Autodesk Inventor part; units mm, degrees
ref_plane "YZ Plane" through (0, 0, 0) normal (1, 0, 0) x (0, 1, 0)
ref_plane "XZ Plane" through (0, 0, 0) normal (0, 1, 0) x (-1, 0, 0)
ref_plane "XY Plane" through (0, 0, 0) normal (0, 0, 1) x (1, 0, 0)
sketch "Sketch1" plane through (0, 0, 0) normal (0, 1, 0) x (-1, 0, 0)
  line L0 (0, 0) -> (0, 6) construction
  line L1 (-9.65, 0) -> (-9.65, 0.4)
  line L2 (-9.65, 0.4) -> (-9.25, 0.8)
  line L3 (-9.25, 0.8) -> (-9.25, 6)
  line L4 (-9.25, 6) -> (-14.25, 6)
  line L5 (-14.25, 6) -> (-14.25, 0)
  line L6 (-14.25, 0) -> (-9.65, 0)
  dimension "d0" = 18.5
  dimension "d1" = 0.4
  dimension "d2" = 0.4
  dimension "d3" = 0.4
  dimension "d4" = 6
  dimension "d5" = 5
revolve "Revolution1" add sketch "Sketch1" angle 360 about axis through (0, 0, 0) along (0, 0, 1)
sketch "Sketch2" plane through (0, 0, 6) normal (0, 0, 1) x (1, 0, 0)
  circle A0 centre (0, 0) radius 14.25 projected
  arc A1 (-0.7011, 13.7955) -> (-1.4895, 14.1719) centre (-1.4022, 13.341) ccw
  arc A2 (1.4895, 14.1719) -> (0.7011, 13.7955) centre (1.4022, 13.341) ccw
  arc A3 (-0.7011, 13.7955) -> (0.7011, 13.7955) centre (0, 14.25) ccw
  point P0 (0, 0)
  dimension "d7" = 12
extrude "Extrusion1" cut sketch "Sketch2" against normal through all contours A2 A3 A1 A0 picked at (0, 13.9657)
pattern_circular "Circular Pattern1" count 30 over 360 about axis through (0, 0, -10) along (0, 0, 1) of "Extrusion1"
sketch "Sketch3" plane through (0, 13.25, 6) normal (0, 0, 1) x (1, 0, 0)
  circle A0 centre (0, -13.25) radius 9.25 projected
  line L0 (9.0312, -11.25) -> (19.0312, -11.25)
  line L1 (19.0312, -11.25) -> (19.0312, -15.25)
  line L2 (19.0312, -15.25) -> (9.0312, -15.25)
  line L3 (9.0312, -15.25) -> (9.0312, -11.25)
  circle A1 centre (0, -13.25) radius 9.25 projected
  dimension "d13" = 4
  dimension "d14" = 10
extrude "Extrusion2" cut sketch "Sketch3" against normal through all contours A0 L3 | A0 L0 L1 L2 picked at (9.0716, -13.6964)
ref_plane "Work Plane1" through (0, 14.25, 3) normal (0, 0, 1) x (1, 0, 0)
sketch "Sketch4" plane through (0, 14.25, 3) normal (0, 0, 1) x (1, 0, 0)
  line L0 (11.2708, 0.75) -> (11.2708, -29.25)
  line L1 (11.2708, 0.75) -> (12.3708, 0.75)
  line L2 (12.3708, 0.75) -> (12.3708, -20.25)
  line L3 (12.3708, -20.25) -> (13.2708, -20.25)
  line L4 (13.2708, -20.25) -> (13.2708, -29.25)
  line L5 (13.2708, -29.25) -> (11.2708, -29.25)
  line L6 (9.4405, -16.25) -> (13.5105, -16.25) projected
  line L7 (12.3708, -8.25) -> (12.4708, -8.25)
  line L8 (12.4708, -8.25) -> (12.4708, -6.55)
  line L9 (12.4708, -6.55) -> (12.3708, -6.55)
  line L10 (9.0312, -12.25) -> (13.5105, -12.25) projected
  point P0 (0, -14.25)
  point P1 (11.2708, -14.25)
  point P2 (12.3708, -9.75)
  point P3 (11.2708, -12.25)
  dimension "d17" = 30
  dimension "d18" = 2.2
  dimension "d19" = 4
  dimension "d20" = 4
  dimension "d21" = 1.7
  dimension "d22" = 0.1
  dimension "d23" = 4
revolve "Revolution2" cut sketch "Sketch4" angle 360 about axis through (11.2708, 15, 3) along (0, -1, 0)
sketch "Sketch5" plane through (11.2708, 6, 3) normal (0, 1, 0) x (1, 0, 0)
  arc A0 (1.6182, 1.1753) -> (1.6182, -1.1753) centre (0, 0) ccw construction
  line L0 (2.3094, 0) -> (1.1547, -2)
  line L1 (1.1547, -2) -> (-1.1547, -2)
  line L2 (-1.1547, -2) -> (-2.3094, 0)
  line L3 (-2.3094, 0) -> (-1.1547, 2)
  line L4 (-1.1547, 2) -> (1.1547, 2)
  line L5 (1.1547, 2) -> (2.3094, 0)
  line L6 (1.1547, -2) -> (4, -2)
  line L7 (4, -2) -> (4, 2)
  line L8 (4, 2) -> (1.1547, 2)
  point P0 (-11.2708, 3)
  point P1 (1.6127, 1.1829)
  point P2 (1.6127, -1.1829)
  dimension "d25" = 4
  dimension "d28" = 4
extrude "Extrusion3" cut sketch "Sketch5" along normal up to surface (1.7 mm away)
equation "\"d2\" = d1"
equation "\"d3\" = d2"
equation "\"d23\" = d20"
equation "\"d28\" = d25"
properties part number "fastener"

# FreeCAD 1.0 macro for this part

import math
import FreeCAD as App
import Part
import Sketcher

V = App.Vector
Q = App.Units.Quantity

doc = App.newDocument("Part")
params = doc.addObject("Spreadsheet::Sheet", "Params")
for row, (alias, value) in enumerate([
    ("sketch1_width", "5 mm"),
    ("sketch1_height", "6 mm"),
    ("sketch1_height2", "0.4 mm"),
    ("revolution_angle", "360 deg"),
    ("sketch2_radius", "14.25 mm"),
    ("sketch3_width", "10 mm"),
    ("sketch3_height", "4 mm"),
    ("sketch4_height", "30 mm"),
    ("sketch4_width", "0.1 mm"),
    ("sketch4_height2", "1.7 mm"),
    ("sketch4_width2", "2 mm"),
    ("sketch4_height3", "9 mm"),
    ("groove_angle", "360 deg"),
    ("sketch5_height", "4 mm"),
    ("pocket3_length", "1.7 mm"),
], start=1):
    params.set(f"A{row}", alias)
    params.set(f"B{row}", "=" + value)
    params.setAlias(f"B{row}", alias)

body = doc.addObject("PartDesign::Body", "Body")

# Sketch on XZ plane
sketch1 = body.newObject("Sketcher::SketchObject", "Sketch")
sketch1.AttachmentSupport = (doc.getObject("XZ_Plane"), [""])
sketch1.MapMode = "FlatFace"
sketch1.addGeometry([
    Part.LineSegment(V(14.25, 0, 0), V(9.65, 0, 0)),  # 0
    Part.LineSegment(V(9.65, 0, 0), V(9.65, 0.4, 0)),  # 1
    Part.LineSegment(V(9.65, 0.4, 0), V(9.25, 0.8, 0)),  # 2
    Part.LineSegment(V(9.25, 0.8, 0), V(9.25, 6, 0)),  # 3
    Part.LineSegment(V(9.25, 6, 0), V(14.25, 6, 0)),  # 4
    Part.LineSegment(V(14.25, 6, 0), V(14.25, 0, 0)),  # 5
], False)
sketch1.addConstraint([
    Sketcher.Constraint("Coincident", 0, 2, 1, 1),
    Sketcher.Constraint("Coincident", 1, 2, 2, 1),
    Sketcher.Constraint("Coincident", 2, 2, 3, 1),
    Sketcher.Constraint("Coincident", 3, 2, 4, 1),
    Sketcher.Constraint("Coincident", 4, 2, 5, 1),
    Sketcher.Constraint("Coincident", 5, 2, 0, 1),
    Sketcher.Constraint("Horizontal", 0),
    Sketcher.Constraint("Vertical", 1),
    Sketcher.Constraint("Vertical", 3),
    Sketcher.Constraint("Horizontal", 4),
    Sketcher.Constraint("Vertical", 5),
    Sketcher.Constraint("PointOnObject", 0, 2, -1),
    Sketcher.Constraint("DistanceX", 4, 1, 4, 2, 5.0),
    Sketcher.Constraint("DistanceY", 5, 2, 5, 1, 6.0),
    Sketcher.Constraint("DistanceY", 1, 1, 1, 2, 0.4),
    Sketcher.Constraint("DistanceX", 2, 2, 1, 2, 0.4),
    Sketcher.Constraint("DistanceY", 1, 2, 2, 2, 0.4),
    Sketcher.Constraint("DistanceX", -1, 1, 0, 2, 9.65),
])
sketch1.setExpression("Constraints[12]", "Params.sketch1_width")
sketch1.setExpression("Constraints[13]", "Params.sketch1_height")
sketch1.setExpression("Constraints[14]", "Params.sketch1_height2")
revolution = body.newObject("PartDesign::Revolution", "Revolution")
revolution.Profile = sketch1
revolution.ReferenceAxis = (sketch1, ["V_Axis"])
revolution.setExpression("Angle", "Params.revolution_angle")

# Sketch on XY plane
sketch2 = body.newObject("Sketcher::SketchObject", "Sketch001")
sketch2.AttachmentSupport = (doc.getObject("XY_Plane"), [""])
sketch2.MapMode = "FlatFace"
sketch2.AttachmentOffset = App.Placement(V(0, 0, 6), App.Rotation())
sketch2.addGeometry([
    Part.ArcOfCircle(Part.Circle(V(1.4022, 13.341, 0), V(0, 0, 1), 0.835474), math.radians(84.002122), math.radians(147.04599)),
    Part.ArcOfCircle(Part.Circle(V(0, 0, 0), V(0, 0, 1), 14.25), math.radians(84.000107), math.radians(95.999893)),
    Part.ArcOfCircle(Part.Circle(V(-1.4022, 13.341, 0), V(0, 0, 1), 0.835531), math.radians(32.95401), math.radians(95.997878)),
    Part.ArcOfCircle(Part.Circle(V(0, 14.25, 0), V(0, 0, 1), 0.835531), math.radians(-147.04599), math.radians(-32.95401)),
], False)
sketch2.addConstraint([
    Sketcher.Constraint("Tangent", 0, 1, 1, 1),
    Sketcher.Constraint("Tangent", 1, 2, 2, 2),
    Sketcher.Constraint("Tangent", 2, 1, 3, 1),
    Sketcher.Constraint("Tangent", 3, 2, 0, 2),
    Sketcher.Constraint("Coincident", 1, 3, -1, 1),
    Sketcher.Constraint("Equal", 0, 2),
    Sketcher.Constraint("Equal", 2, 3),
    Sketcher.Constraint("PointOnObject", 3, 3, -2),
    Sketcher.Constraint("Radius", 1, 14.25),
    Sketcher.Constraint("Radius", 0, 0.8355),
    Sketcher.Constraint("DistanceY", -1, 1, 3, 3, 14.25),
])
sketch2.setExpression("Constraints[8]", "Params.sketch2_radius")
pocket1 = body.newObject("PartDesign::Pocket", "Pocket")
pocket1.Profile = sketch2
pocket1.Type = "ThroughAll"
doc.recompute()

polarpattern = body.newObject("PartDesign::PolarPattern", "PolarPattern")
polarpattern.Originals = [pocket1]
polarpattern.Axis = (doc.getObject("Z_Axis"), [""])
polarpattern.Angle = 360
polarpattern.Occurrences = 30
body.Tip = polarpattern

# Sketch on XY plane
sketch3 = body.newObject("Sketcher::SketchObject", "Sketch002")
sketch3.AttachmentSupport = (doc.getObject("XY_Plane"), [""])
sketch3.MapMode = "FlatFace"
sketch3.AttachmentOffset = App.Placement(V(0, 0, 6), App.Rotation())
sketch3.addGeometry([
    Part.LineSegment(V(9.0312, 2, 0), V(9.0312, -2, 0)),
    Part.LineSegment(V(9.0312, -2, 0), V(19.0312, -2, 0)),
    Part.LineSegment(V(19.0312, -2, 0), V(19.0312, 2, 0)),
    Part.LineSegment(V(19.0312, 2, 0), V(9.0312, 2, 0)),
], False)
sketch3.addConstraint([
    Sketcher.Constraint("Coincident", 0, 2, 1, 1),
    Sketcher.Constraint("Coincident", 1, 2, 2, 1),
    Sketcher.Constraint("Coincident", 2, 2, 3, 1),
    Sketcher.Constraint("Coincident", 3, 2, 0, 1),
    Sketcher.Constraint("Vertical", 0),
    Sketcher.Constraint("Horizontal", 1),
    Sketcher.Constraint("Vertical", 2),
    Sketcher.Constraint("Horizontal", 3),
    Sketcher.Constraint("DistanceX", 1, 1, 1, 2, 10.0),
    Sketcher.Constraint("DistanceY", 0, 2, 0, 1, 4.0),
    Sketcher.Constraint("DistanceY", 0, 2, -1, 1, 2.0),
    Sketcher.Constraint("DistanceX", -1, 1, 0, 2, 9.0312),
])
sketch3.setExpression("Constraints[8]", "Params.sketch3_width")
sketch3.setExpression("Constraints[9]", "Params.sketch3_height")
pocket2 = body.newObject("PartDesign::Pocket", "Pocket001")
pocket2.Profile = sketch3
pocket2.Type = "ThroughAll"

# Sketch on XY plane
sketch4 = body.newObject("Sketcher::SketchObject", "Sketch003")
sketch4.AttachmentSupport = (doc.getObject("XY_Plane"), [""])
sketch4.MapMode = "FlatFace"
sketch4.AttachmentOffset = App.Placement(V(0, 0, 3), App.Rotation())
sketch4.addGeometry([
    Part.LineSegment(V(12.3708, 15, 0), V(11.2708, 15, 0)),  # 0
    Part.LineSegment(V(11.2708, 15, 0), V(11.2708, -15, 0)),  # 1
    Part.LineSegment(V(11.2708, -15, 0), V(13.2708, -15, 0)),  # 2
    Part.LineSegment(V(13.2708, -15, 0), V(13.2708, -6, 0)),  # 3
    Part.LineSegment(V(13.2708, -6, 0), V(12.3708, -6, 0)),  # 4
    Part.LineSegment(V(12.3708, -6, 0), V(12.3708, 6, 0)),  # 5
    Part.LineSegment(V(12.3708, 6, 0), V(12.4708, 6, 0)),  # 6
    Part.LineSegment(V(12.4708, 6, 0), V(12.4708, 7.7, 0)),  # 7
    Part.LineSegment(V(12.4708, 7.7, 0), V(12.3708, 7.7, 0)),  # 8
    Part.LineSegment(V(12.3708, 7.7, 0), V(12.3708, 15, 0)),  # 9
], False)
sketch4.addGeometry(Part.LineSegment(V(11.2708, 15, 0), V(11.2708, -15, 0)), True)  # axis
sketch4.addConstraint([
    Sketcher.Constraint("Coincident", 0, 2, 1, 1),
    Sketcher.Constraint("Coincident", 1, 2, 2, 1),
    Sketcher.Constraint("Coincident", 2, 2, 3, 1),
    Sketcher.Constraint("Coincident", 3, 2, 4, 1),
    Sketcher.Constraint("Coincident", 4, 2, 5, 1),
    Sketcher.Constraint("Coincident", 5, 2, 6, 1),
    Sketcher.Constraint("Coincident", 6, 2, 7, 1),
    Sketcher.Constraint("Coincident", 7, 2, 8, 1),
    Sketcher.Constraint("Coincident", 8, 2, 9, 1),
    Sketcher.Constraint("Coincident", 9, 2, 0, 1),
    Sketcher.Constraint("Horizontal", 0),
    Sketcher.Constraint("Vertical", 1),
    Sketcher.Constraint("Horizontal", 2),
    Sketcher.Constraint("Vertical", 3),
    Sketcher.Constraint("Horizontal", 4),
    Sketcher.Constraint("Vertical", 5),
    Sketcher.Constraint("Horizontal", 6),
    Sketcher.Constraint("Vertical", 7),
    Sketcher.Constraint("Horizontal", 8),
    Sketcher.Constraint("Vertical", 9),
    Sketcher.Constraint("Vertical", 10),
    Sketcher.Constraint("Coincident", 10, 1, 0, 2),
    Sketcher.Constraint("Horizontal", 2, 2, 10, 2),
    Sketcher.Constraint("Vertical", 5, 2, 8, 2),
    Sketcher.Constraint("DistanceY", 1, 2, 1, 1, 30.0),
    Sketcher.Constraint("DistanceX", 6, 1, 6, 2, 0.1),
    Sketcher.Constraint("DistanceY", 7, 1, 7, 2, 1.7),
    Sketcher.Constraint("DistanceX", 2, 1, 2, 2, 2.0),
    Sketcher.Constraint("DistanceY", 3, 1, 3, 2, 9.0),
    Sketcher.Constraint("DistanceY", 5, 1, 5, 2, 12.0),
    Sketcher.Constraint("DistanceX", 0, 2, 0, 1, 1.1),
    Sketcher.Constraint("DistanceY", -1, 1, 0, 2, 15.0),
    Sketcher.Constraint("DistanceX", -1, 1, 0, 2, 11.2708),
])
sketch4.setExpression("Constraints[24]", "Params.sketch4_height")
sketch4.setExpression("Constraints[25]", "Params.sketch4_width")
sketch4.setExpression("Constraints[26]", "Params.sketch4_height2")
sketch4.setExpression("Constraints[27]", "Params.sketch4_width2")
sketch4.setExpression("Constraints[28]", "Params.sketch4_height3")
groove = body.newObject("PartDesign::Groove", "Groove")
groove.Profile = sketch4
groove.ReferenceAxis = (sketch4, ["Axis0"])
groove.setExpression("Angle", "Params.groove_angle")

# Sketch on XZ plane
sketch5 = body.newObject("Sketcher::SketchObject", "Sketch004")
sketch5.AttachmentSupport = (doc.getObject("XZ_Plane"), [""])
sketch5.MapMode = "FlatFace"
sketch5.AttachmentOffset = App.Placement(V(0, 0, -6), App.Rotation())
sketch5.addGeometry([
    Part.LineSegment(V(15.2708, 1, 0), V(10.1161, 1, 0)),  # 0
    Part.LineSegment(V(10.1161, 1, 0), V(8.9614, 3, 0)),  # 1
    Part.LineSegment(V(8.9614, 3, 0), V(10.1161, 5, 0)),  # 2
    Part.LineSegment(V(10.1161, 5, 0), V(15.2708, 5, 0)),  # 3
    Part.LineSegment(V(15.2708, 5, 0), V(15.2708, 1, 0)),  # 4
], False)
sketch5.addConstraint([
    Sketcher.Constraint("Coincident", 0, 2, 1, 1),
    Sketcher.Constraint("Coincident", 1, 2, 2, 1),
    Sketcher.Constraint("Coincident", 2, 2, 3, 1),
    Sketcher.Constraint("Coincident", 3, 2, 4, 1),
    Sketcher.Constraint("Coincident", 4, 2, 0, 1),
    Sketcher.Constraint("Horizontal", 0),
    Sketcher.Constraint("Horizontal", 3),
    Sketcher.Constraint("Vertical", 4),
    Sketcher.Constraint("Vertical", 0, 2, 2, 2),
    Sketcher.Constraint("Equal", 1, 2),
    Sketcher.Constraint("DistanceY", 4, 2, 4, 1, 4.0),
    Sketcher.Constraint("Angle", 1, Q("120 deg")),
    Sketcher.Constraint("DistanceY", -1, 1, 0, 2, 1.0),
    Sketcher.Constraint("DistanceX", 0, 2, 0, 1, 5.1547),
    Sketcher.Constraint("DistanceX", -1, 1, 0, 2, 10.116),
])
sketch5.setExpression("Constraints[10]", "Params.sketch5_height")
pocket3 = body.newObject("PartDesign::Pocket", "Pocket002")
pocket3.Profile = sketch5
pocket3.setExpression("Length", "Params.pocket3_length")

doc.recompute()
